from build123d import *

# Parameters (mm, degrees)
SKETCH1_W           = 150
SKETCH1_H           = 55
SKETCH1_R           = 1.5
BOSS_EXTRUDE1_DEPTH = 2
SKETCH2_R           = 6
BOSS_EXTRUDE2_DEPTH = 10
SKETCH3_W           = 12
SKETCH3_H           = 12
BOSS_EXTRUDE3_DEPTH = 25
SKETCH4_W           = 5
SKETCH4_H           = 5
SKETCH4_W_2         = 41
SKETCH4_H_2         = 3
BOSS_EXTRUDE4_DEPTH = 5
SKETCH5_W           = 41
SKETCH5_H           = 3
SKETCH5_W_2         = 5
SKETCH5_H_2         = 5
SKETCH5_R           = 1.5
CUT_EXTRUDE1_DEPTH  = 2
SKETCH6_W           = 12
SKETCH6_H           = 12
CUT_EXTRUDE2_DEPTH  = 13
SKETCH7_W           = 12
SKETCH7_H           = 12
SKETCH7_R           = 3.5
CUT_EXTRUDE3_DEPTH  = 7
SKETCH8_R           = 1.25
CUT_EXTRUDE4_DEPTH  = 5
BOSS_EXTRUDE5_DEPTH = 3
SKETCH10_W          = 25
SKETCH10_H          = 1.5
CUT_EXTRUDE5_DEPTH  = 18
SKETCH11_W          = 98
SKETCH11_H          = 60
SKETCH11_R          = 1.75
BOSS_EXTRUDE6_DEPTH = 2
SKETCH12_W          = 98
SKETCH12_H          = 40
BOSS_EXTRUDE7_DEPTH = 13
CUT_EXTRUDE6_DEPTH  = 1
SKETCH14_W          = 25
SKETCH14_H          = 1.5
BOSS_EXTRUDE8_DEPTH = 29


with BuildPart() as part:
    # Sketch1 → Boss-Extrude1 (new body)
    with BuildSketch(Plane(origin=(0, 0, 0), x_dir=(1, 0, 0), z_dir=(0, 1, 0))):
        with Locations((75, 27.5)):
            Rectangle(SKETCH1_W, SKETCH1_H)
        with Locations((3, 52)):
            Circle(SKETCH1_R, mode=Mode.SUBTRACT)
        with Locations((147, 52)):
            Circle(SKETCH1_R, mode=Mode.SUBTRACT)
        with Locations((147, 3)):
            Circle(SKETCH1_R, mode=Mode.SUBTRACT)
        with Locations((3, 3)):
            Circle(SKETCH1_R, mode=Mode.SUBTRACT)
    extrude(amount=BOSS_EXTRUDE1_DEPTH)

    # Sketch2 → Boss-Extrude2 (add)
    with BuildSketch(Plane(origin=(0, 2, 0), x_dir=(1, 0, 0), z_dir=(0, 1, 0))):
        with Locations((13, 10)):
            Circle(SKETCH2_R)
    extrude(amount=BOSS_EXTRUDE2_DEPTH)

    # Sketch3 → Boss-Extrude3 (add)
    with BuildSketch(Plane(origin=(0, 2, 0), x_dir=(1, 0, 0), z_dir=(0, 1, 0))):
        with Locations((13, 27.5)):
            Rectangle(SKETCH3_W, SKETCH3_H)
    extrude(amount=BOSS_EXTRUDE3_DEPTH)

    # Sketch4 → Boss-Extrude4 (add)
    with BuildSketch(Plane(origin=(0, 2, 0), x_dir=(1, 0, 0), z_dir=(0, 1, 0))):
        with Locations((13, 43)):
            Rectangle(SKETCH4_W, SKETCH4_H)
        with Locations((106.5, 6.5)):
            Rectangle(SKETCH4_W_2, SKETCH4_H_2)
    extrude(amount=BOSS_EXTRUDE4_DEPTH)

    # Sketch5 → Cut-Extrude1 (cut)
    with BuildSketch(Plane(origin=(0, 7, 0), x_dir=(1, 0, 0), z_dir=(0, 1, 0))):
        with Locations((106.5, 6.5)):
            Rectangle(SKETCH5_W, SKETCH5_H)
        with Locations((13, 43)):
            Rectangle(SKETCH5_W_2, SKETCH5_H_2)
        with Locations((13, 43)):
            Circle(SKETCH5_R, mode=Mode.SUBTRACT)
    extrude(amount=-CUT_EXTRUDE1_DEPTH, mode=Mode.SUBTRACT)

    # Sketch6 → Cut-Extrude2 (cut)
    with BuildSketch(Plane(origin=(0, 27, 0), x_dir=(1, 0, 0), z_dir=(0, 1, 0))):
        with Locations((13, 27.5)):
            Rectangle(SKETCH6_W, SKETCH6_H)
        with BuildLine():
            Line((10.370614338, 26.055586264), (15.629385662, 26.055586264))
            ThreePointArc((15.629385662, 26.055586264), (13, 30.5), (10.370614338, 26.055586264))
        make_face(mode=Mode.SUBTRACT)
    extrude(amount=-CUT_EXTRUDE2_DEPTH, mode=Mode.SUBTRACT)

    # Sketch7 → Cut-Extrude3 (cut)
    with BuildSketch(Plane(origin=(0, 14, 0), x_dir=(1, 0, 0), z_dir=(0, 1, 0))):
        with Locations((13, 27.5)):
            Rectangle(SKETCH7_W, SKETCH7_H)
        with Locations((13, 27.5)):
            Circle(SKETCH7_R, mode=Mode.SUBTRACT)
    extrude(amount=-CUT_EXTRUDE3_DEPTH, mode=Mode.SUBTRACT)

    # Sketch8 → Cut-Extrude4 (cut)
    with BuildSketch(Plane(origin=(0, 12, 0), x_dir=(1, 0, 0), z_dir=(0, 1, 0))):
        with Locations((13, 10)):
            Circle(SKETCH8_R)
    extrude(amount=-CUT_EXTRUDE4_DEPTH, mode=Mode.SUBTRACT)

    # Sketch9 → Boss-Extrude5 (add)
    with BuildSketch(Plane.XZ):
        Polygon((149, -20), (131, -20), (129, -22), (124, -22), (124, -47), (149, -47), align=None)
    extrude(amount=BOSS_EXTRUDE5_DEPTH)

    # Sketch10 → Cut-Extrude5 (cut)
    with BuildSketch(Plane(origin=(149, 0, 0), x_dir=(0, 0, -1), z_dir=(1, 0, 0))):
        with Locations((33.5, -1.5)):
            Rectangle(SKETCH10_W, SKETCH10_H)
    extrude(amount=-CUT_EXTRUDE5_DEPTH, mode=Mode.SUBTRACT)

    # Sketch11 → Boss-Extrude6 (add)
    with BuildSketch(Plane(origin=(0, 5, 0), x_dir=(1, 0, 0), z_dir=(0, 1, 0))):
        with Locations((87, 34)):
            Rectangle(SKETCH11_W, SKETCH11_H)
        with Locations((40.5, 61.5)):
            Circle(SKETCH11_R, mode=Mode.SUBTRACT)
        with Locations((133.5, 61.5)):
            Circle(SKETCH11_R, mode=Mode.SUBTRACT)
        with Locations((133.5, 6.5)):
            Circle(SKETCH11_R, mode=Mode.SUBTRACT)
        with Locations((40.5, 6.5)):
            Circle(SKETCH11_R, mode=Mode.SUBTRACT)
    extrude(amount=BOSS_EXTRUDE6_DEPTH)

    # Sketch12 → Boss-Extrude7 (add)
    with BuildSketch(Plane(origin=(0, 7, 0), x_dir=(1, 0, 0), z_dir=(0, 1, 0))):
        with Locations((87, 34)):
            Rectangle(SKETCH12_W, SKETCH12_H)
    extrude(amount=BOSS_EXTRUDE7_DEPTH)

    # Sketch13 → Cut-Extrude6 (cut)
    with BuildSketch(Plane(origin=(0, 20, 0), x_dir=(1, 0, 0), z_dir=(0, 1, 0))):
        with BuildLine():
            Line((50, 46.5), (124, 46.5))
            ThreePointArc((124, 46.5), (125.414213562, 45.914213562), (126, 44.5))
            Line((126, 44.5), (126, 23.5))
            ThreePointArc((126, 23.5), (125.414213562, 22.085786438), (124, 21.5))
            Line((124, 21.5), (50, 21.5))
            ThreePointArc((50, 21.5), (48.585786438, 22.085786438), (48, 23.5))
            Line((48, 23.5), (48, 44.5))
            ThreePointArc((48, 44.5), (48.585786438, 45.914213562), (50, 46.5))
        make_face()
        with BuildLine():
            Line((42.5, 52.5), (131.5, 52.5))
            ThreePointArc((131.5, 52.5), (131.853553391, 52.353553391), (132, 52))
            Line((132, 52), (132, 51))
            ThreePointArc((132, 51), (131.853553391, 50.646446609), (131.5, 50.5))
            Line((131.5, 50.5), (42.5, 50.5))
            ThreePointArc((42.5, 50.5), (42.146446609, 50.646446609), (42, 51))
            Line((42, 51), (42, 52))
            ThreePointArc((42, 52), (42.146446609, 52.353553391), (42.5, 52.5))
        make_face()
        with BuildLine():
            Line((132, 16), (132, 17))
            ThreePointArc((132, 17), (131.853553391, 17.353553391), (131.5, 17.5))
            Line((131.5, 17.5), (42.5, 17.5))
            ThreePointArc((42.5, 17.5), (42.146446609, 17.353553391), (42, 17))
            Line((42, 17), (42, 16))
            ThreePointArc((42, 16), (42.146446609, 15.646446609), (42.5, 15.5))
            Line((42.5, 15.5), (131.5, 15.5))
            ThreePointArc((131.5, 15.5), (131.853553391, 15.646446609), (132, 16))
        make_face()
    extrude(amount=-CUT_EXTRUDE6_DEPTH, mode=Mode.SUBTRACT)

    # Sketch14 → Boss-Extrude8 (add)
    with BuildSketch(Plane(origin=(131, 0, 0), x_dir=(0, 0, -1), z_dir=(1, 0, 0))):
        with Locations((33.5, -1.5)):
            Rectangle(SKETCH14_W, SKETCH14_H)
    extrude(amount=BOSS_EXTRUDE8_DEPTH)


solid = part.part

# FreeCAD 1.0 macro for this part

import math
import FreeCAD as App
import Part
import Sketcher

V = App.Vector
Q = App.Units.Quantity


def add_polygon(sketch, points):
    """Adds a closed chain of lines whose ends are joined by coincident constraints."""
    first, n = sketch.GeometryCount, len(points)
    for a, b in zip(points, points[1:] + points[:1]):
        sketch.addGeometry(Part.LineSegment(App.Vector(*a, 0), App.Vector(*b, 0)), False)
    for i in range(n):
        sketch.addConstraint(Sketcher.Constraint("Coincident", first + i, 2, first + (i + 1) % n, 1))

doc = App.newDocument("Part")
body = doc.addObject("PartDesign::Body", "Body")

# Sketch on XZ plane
sketch1 = body.newObject("Sketcher::SketchObject", "Sketch")
sketch1.AttachmentSupport = (doc.getObject("XZ_Plane"), [""])
sketch1.MapMode = "FlatFace"
add_polygon(sketch1, [(0, -55), (0, 0), (150, 0), (150, -55)])  # lines 0-3
sketch1.addGeometry(Part.Circle(V(3, -3, 0), V(0, 0, 1), 1.5), False)  # 4
sketch1.addGeometry(Part.Circle(V(147, -3, 0), V(0, 0, 1), 1.5), False)  # 5
sketch1.addGeometry(Part.Circle(V(3, -52, 0), V(0, 0, 1), 1.5), False)  # 6
sketch1.addGeometry(Part.Circle(V(147, -52, 0), V(0, 0, 1), 1.5), False)  # 7
sketch1.addConstraint([
    Sketcher.Constraint("Vertical", 0),
    Sketcher.Constraint("Horizontal", 1),
    Sketcher.Constraint("Vertical", 2),
    Sketcher.Constraint("Horizontal", 3),
    Sketcher.Constraint("Coincident", 0, 2, -1, 1),
    Sketcher.Constraint("Equal", 4, 5),
    Sketcher.Constraint("Equal", 5, 6),
    Sketcher.Constraint("Equal", 6, 7),
    Sketcher.Constraint("Horizontal", 4, 3, 5, 3),
    Sketcher.Constraint("Horizontal", 6, 3, 7, 3),
    Sketcher.Constraint("Vertical", 4, 3, 6, 3),
    Sketcher.Constraint("Vertical", 5, 3, 7, 3),
    Sketcher.Constraint("Diameter", 4, Q("3 mm")),
    Sketcher.Constraint("DistanceX", 1, 1, 1, 2, Q("150 mm")),
    Sketcher.Constraint("DistanceY", 0, 1, 0, 2, Q("55 mm")),
    Sketcher.Constraint("DistanceX", -1, 1, 4, 3, Q("3 mm")),
    Sketcher.Constraint("DistanceY", 4, 3, -1, 1, Q("3 mm")),
    Sketcher.Constraint("DistanceX", -1, 1, 5, 3, Q("147 mm")),
    Sketcher.Constraint("DistanceY", 6, 3, -1, 1, Q("52 mm")),
])
pad1 = body.newObject("PartDesign::Pad", "Pad")
pad1.Profile = sketch1
pad1.Length = 2
pad1.Reversed = True

# Sketch on XZ plane
sketch2 = body.newObject("Sketcher::SketchObject", "Sketch001")
sketch2.AttachmentSupport = (doc.getObject("XZ_Plane"), [""])
sketch2.MapMode = "FlatFace"
sketch2.AttachmentOffset = App.Placement(V(0, 0, -2), App.Rotation())
sketch2.addGeometry(Part.Circle(V(13, -10, 0), V(0, 0, 1), 6), False)
sketch2.addConstraint([
    Sketcher.Constraint("Diameter", 0, Q("12 mm")),
    Sketcher.Constraint("DistanceX", -1, 1, 0, 3, Q("13 mm")),
    Sketcher.Constraint("DistanceY", 0, 3, -1, 1, Q("10 mm")),
])
pad2 = body.newObject("PartDesign::Pad", "Pad001")
pad2.Profile = sketch2
pad2.Length = 10
pad2.Reversed = True

# Sketch on XZ plane
sketch3 = body.newObject("Sketcher::SketchObject", "Sketch002")
sketch3.AttachmentSupport = (doc.getObject("XZ_Plane"), [""])
sketch3.MapMode = "FlatFace"
sketch3.AttachmentOffset = App.Placement(V(0, 0, -2), App.Rotation())
add_polygon(sketch3, [(7, -34), (7, -22), (19, -22), (19, -34)])  # lines 0-3
sketch3.addConstraint([
    Sketcher.Constraint("Vertical", 0),
    Sketcher.Constraint("Horizontal", 1),
    Sketcher.Constraint("Vertical", 2),
    Sketcher.Constraint("Horizontal", 3),
    Sketcher.Constraint("Equal", 3, 0),
    Sketcher.Constraint("DistanceX", 1, 1, 1, 2, Q("12 mm")),
    Sketcher.Constraint("DistanceX", -1, 1, 0, 2, Q("7 mm")),
    Sketcher.Constraint("DistanceY", 0, 2, -1, 1, Q("21.5 mm")),
])
pad3 = body.newObject("PartDesign::Pad", "Pad002")
pad3.Profile = sketch3
pad3.Length = 25
pad3.Reversed = True

# Sketch on XZ plane
sketch4 = body.newObject("Sketcher::SketchObject", "Sketch003")
sketch4.AttachmentSupport = (doc.getObject("XZ_Plane"), [""])
sketch4.MapMode = "FlatFace"
sketch4.AttachmentOffset = App.Placement(V(0, 0, -2), App.Rotation())
add_polygon(sketch4, [(10.5, -45.5), (10.5, -40.5), (15.5, -40.5), (15.5, -45.5)])  # lines 0-3
add_polygon(sketch4, [(86, -8), (86, -5), (127, -5), (127, -8)])  # lines 4-7
sketch4.addConstraint([
    Sketcher.Constraint("Vertical", 0),
    Sketcher.Constraint("Horizontal", 1),
    Sketcher.Constraint("Vertical", 2),
    Sketcher.Constraint("Horizontal", 3),
    Sketcher.Constraint("Vertical", 4),
    Sketcher.Constraint("Horizontal", 5),
    Sketcher.Constraint("Vertical", 6),
    Sketcher.Constraint("Horizontal", 7),
    Sketcher.Constraint("Equal", 3, 0),
    Sketcher.Constraint("DistanceX", 1, 1, 1, 2, Q("5 mm")),
    Sketcher.Constraint("DistanceX", 5, 1, 5, 2, Q("41 mm")),
    Sketcher.Constraint("DistanceY", 4, 1, 4, 2, Q("3 mm")),
    Sketcher.Constraint("DistanceX", -1, 1, 4, 2, Q("86 mm")),
    Sketcher.Constraint("DistanceY", 4, 2, -1, 1, Q("5 mm")),
    Sketcher.Constraint("DistanceX", -1, 1, 0, 2, Q("10.5 mm")),
    Sketcher.Constraint("DistanceY", 0, 2, -1, 1, Q("40.5 mm")),
])
pad4 = body.newObject("PartDesign::Pad", "Pad003")
pad4.Profile = sketch4
pad4.Length = 5
pad4.Reversed = True

# Sketch on XZ plane
sketch5 = body.newObject("Sketcher::SketchObject", "Sketch004")
sketch5.AttachmentSupport = (doc.getObject("XZ_Plane"), [""])
sketch5.MapMode = "FlatFace"
sketch5.AttachmentOffset = App.Placement(V(0, 0, -7), App.Rotation())
add_polygon(sketch5, [(86, -8), (86, -5), (127, -5), (127, -8)])  # lines 0-3
add_polygon(sketch5, [(10.5, -45.5), (10.5, -40.5), (15.5, -40.5), (15.5, -45.5)])  # lines 4-7
sketch5.addGeometry(Part.Circle(V(13, -43, 0), V(0, 0, 1), 1.5), False)  # 8
sketch5.addConstraint([
    Sketcher.Constraint("Vertical", 0),
    Sketcher.Constraint("Horizontal", 1),
    Sketcher.Constraint("Vertical", 2),
    Sketcher.Constraint("Horizontal", 3),
    Sketcher.Constraint("Vertical", 4),
    Sketcher.Constraint("Horizontal", 5),
    Sketcher.Constraint("Vertical", 6),
    Sketcher.Constraint("Horizontal", 7),
    Sketcher.Constraint("Equal", 7, 4),
    Sketcher.Constraint("Diameter", 8, Q("3 mm")),
    Sketcher.Constraint("DistanceX", 1, 1, 1, 2, Q("41 mm")),
    Sketcher.Constraint("DistanceX", 5, 1, 5, 2, Q("5 mm")),
    Sketcher.Constraint("DistanceY", 0, 1, 0, 2, Q("3 mm")),
    Sketcher.Constraint("DistanceX", -1, 1, 8, 3, Q("13 mm")),
    Sketcher.Constraint("DistanceY", 8, 3, -1, 1, Q("43 mm")),
    Sketcher.Constraint("DistanceX", -1, 1, 0, 2, Q("86 mm")),
    Sketcher.Constraint("DistanceY", 0, 2, -1, 1, Q("5 mm")),
    Sketcher.Constraint("DistanceX", -1, 1, 4, 2, Q("10.5 mm")),
    Sketcher.Constraint("DistanceY", 4, 2, -1, 1, Q("40.5 mm")),
])
pocket1 = body.newObject("PartDesign::Pocket", "Pocket")
pocket1.Profile = sketch5
pocket1.Length = 2
pocket1.Reversed = True

# Sketch on XZ plane
sketch6 = body.newObject("Sketcher::SketchObject", "Sketch005")
sketch6.AttachmentSupport = (doc.getObject("XZ_Plane"), [""])
sketch6.MapMode = "FlatFace"
sketch6.AttachmentOffset = App.Placement(V(0, 0, -27), App.Rotation())
add_polygon(sketch6, [(7, -33.5), (7, -21.5), (19, -21.5), (19, -33.5)])  # lines 0-3
sketch6.addGeometry(Part.LineSegment(V(15.6, -26.1, 0), V(10.4, -26.1, 0)), False)  # 4
sketch6.addGeometry(Part.ArcOfCircle(Part.Circle(V(13, -27.5, 0), V(0, 0, 1), 3), math.radians(151), math.radians(389)), False)  # 5
sketch6.addConstraint([
    Sketcher.Constraint("Coincident", 4, 1, 5, 2),
    Sketcher.Constraint("Coincident", 5, 1, 4, 2),
    Sketcher.Constraint("Vertical", 0),
    Sketcher.Constraint("Horizontal", 1),
    Sketcher.Constraint("Vertical", 2),
    Sketcher.Constraint("Horizontal", 3),
    Sketcher.Constraint("Horizontal", 4),
    Sketcher.Constraint("Equal", 3, 0),
    Sketcher.Constraint("Radius", 5, Q("3 mm")),
    Sketcher.Constraint("DistanceX", 1, 1, 1, 2, Q("12 mm")),
    Sketcher.Constraint("DistanceX", -1, 1, 5, 3, Q("13 mm")),
    Sketcher.Constraint("DistanceX", -1, 1, 0, 2, Q("7 mm")),
    Sketcher.Constraint("DistanceY", 5, 3, 0, 2, Q("6 mm")),
    Sketcher.Constraint("DistanceY", 5, 3, -1, 1, Q("27.5 mm")),
    Sketcher.Constraint("DistanceX", 4, 2, 4, 1, Q("5.258771 mm")),
])
pocket2 = body.newObject("PartDesign::Pocket", "Pocket001")
pocket2.Profile = sketch6
pocket2.Length = 13
pocket2.Reversed = True

# Sketch on XZ plane
sketch7 = body.newObject("Sketcher::SketchObject", "Sketch006")
sketch7.AttachmentSupport = (doc.getObject("XZ_Plane"), [""])
sketch7.MapMode = "FlatFace"
sketch7.AttachmentOffset = App.Placement(V(0, 0, -14), App.Rotation())
add_polygon(sketch7, [(7, -33.5), (7, -21.5), (19, -21.5), (19, -33.5)])  # lines 0-3
sketch7.addGeometry(Part.Circle(V(13, -27.5, 0), V(0, 0, 1), 3.5), False)  # 4
sketch7.addConstraint([
    Sketcher.Constraint("Vertical", 0),
    Sketcher.Constraint("Horizontal", 1),
    Sketcher.Constraint("Vertical", 2),
    Sketcher.Constraint("Horizontal", 3),
    Sketcher.Constraint("Equal", 3, 0),
    Sketcher.Constraint("Diameter", 4, Q("7 mm")),
    Sketcher.Constraint("DistanceX", 1, 1, 1, 2, Q("12 mm")),
    Sketcher.Constraint("DistanceX", -1, 1, 4, 3, Q("13 mm")),
    Sketcher.Constraint("DistanceX", -1, 1, 0, 2, Q("7 mm")),
    Sketcher.Constraint("DistanceY", 4, 3, 0, 2, Q("6 mm")),
    Sketcher.Constraint("DistanceY", 4, 3, -1, 1, Q("27.5 mm")),
])
pocket3 = body.newObject("PartDesign::Pocket", "Pocket002")
pocket3.Profile = sketch7
pocket3.Length = 7
pocket3.Reversed = True

# Sketch on XZ plane
sketch8 = body.newObject("Sketcher::SketchObject", "Sketch007")
sketch8.AttachmentSupport = (doc.getObject("XZ_Plane"), [""])
sketch8.MapMode = "FlatFace"
sketch8.AttachmentOffset = App.Placement(V(0, 0, -12), App.Rotation())
sketch8.addGeometry(Part.Circle(V(13, -10, 0), V(0, 0, 1), 1.2), False)
sketch8.addConstraint([
    Sketcher.Constraint("Diameter", 0, Q("2.5 mm")),
    Sketcher.Constraint("DistanceX", -1, 1, 0, 3, Q("13 mm")),
    Sketcher.Constraint("DistanceY", 0, 3, -1, 1, Q("10 mm")),
])
pocket4 = body.newObject("PartDesign::Pocket", "Pocket003")
pocket4.Profile = sketch8
pocket4.Length = 5
pocket4.Reversed = True

# Sketch on XZ plane
sketch9 = body.newObject("Sketcher::SketchObject", "Sketch008")
sketch9.AttachmentSupport = (doc.getObject("XZ_Plane"), [""])
sketch9.MapMode = "FlatFace"
add_polygon(sketch9, [(149, -20), (131, -20), (129, -22), (124, -22), (124, -47), (149, -47)])  # lines 0-5
sketch9.addConstraint([
    Sketcher.Constraint("Horizontal", 0),
    Sketcher.Constraint("Horizontal", 2),
    Sketcher.Constraint("Vertical", 3),
    Sketcher.Constraint("Horizontal", 4),
    Sketcher.Constraint("Vertical", 5),
    Sketcher.Constraint("Equal", 4, 3),
    Sketcher.Constraint("DistanceX", 0, 2, 0, 1, Q("18 mm")),
    Sketcher.Constraint("DistanceX", 2, 2, 2, 1, Q("5 mm")),
    Sketcher.Constraint("DistanceX", 4, 1, 4, 2, Q("25 mm")),
    Sketcher.Constraint("DistanceY", 5, 1, 5, 2, Q("27 mm")),
    Sketcher.Constraint("DistanceX", -1, 1, 0, 2, Q("131 mm")),
    Sketcher.Constraint("DistanceY", 0, 2, -1, 1, Q("20 mm")),
])
pad5 = body.newObject("PartDesign::Pad", "Pad004")
pad5.Profile = sketch9
pad5.Length = 3

# Sketch on YZ plane
sketch10 = body.newObject("Sketcher::SketchObject", "Sketch009")
sketch10.AttachmentSupport = (doc.getObject("YZ_Plane"), [""])
sketch10.MapMode = "FlatFace"
sketch10.AttachmentOffset = App.Placement(V(0, 0, 149), App.Rotation())
add_polygon(sketch10, [(-0.8, -21), (-2.2, -21), (-2.2, -46), (-0.8, -46)])  # lines 0-3
sketch10.addConstraint([
    Sketcher.Constraint("Horizontal", 0),
    Sketcher.Constraint("Vertical", 1),
    Sketcher.Constraint("Horizontal", 2),
    Sketcher.Constraint("Vertical", 3),
    Sketcher.Constraint("DistanceY", 1, 2, 1, 1, Q("25 mm")),
    Sketcher.Constraint("DistanceX", 0, 2, 0, 1, Q("1.5 mm")),
    Sketcher.Constraint("DistanceY", 0, 2, -1, 1, Q("21 mm")),
    Sketcher.Constraint("DistanceX", 0, 2, -1, 1, Q("2.25 mm")),
])
pocket5 = body.newObject("PartDesign::Pocket", "Pocket004")
pocket5.Profile = sketch10
pocket5.Length = 18

# Sketch on XZ plane
sketch11 = body.newObject("Sketcher::SketchObject", "Sketch010")
sketch11.AttachmentSupport = (doc.getObject("XZ_Plane"), [""])
sketch11.MapMode = "FlatFace"
sketch11.AttachmentOffset = App.Placement(V(0, 0, -5), App.Rotation())
add_polygon(sketch11, [(38, -64), (38, -4), (136, -4), (136, -64)])  # lines 0-3
sketch11.addGeometry(Part.Circle(V(40.5, -6.5, 0), V(0, 0, 1), 1.8), False)  # 4
sketch11.addGeometry(Part.Circle(V(133.5, -6.5, 0), V(0, 0, 1), 1.8), False)  # 5
sketch11.addGeometry(Part.Circle(V(40.5, -61.5, 0), V(0, 0, 1), 1.8), False)  # 6
sketch11.addGeometry(Part.Circle(V(133.5, -61.5, 0), V(0, 0, 1), 1.8), False)  # 7
sketch11.addConstraint([
    Sketcher.Constraint("Vertical", 0),
    Sketcher.Constraint("Horizontal", 1),
    Sketcher.Constraint("Vertical", 2),
    Sketcher.Constraint("Horizontal", 3),
    Sketcher.Constraint("Equal", 4, 5),
    Sketcher.Constraint("Equal", 5, 6),
    Sketcher.Constraint("Equal", 6, 7),
    Sketcher.Constraint("Horizontal", 4, 3, 5, 3),
    Sketcher.Constraint("Horizontal", 6, 3, 7, 3),
    Sketcher.Constraint("Vertical", 4, 3, 6, 3),
    Sketcher.Constraint("Vertical", 5, 3, 7, 3),
    Sketcher.Constraint("Diameter", 4, Q("3.5 mm")),
    Sketcher.Constraint("DistanceX", 1, 1, 1, 2, Q("98 mm")),
    Sketcher.Constraint("DistanceY", 0, 1, 0, 2, Q("60 mm")),
    Sketcher.Constraint("DistanceX", -1, 1, 0, 2, Q("38 mm")),
    Sketcher.Constraint("DistanceY", 0, 2, -1, 1, Q("4 mm")),
    Sketcher.Constraint("DistanceX", 4, 3, 5, 3, Q("93 mm")),
    Sketcher.Constraint("DistanceY", 6, 3, 4, 3, Q("55 mm")),
    Sketcher.Constraint("DistanceX", -1, 1, 4, 3, Q("40.5 mm")),
    Sketcher.Constraint("DistanceY", 4, 3, -1, 1, Q("6.5 mm")),
])
pad6 = body.newObject("PartDesign::Pad", "Pad005")
pad6.Profile = sketch11
pad6.Length = 2
pad6.Reversed = True

# Sketch on XZ plane
sketch12 = body.newObject("Sketcher::SketchObject", "Sketch011")
sketch12.AttachmentSupport = (doc.getObject("XZ_Plane"), [""])
sketch12.MapMode = "FlatFace"
sketch12.AttachmentOffset = App.Placement(V(0, 0, -7), App.Rotation())
add_polygon(sketch12, [(38, -54), (38, -14), (136, -14), (136, -54)])  # lines 0-3
sketch12.addConstraint([
    Sketcher.Constraint("Vertical", 0),
    Sketcher.Constraint("Horizontal", 1),
    Sketcher.Constraint("Vertical", 2),
    Sketcher.Constraint("Horizontal", 3),
    Sketcher.Constraint("DistanceX", 1, 1, 1, 2, Q("98 mm")),
    Sketcher.Constraint("DistanceY", 0, 1, 0, 2, Q("40 mm")),
    Sketcher.Constraint("DistanceX", -1, 1, 0, 2, Q("38 mm")),
    Sketcher.Constraint("DistanceY", 0, 2, -1, 1, Q("14 mm")),
])
pad7 = body.newObject("PartDesign::Pad", "Pad006")
pad7.Profile = sketch12
pad7.Length = 13
pad7.Reversed = True

# Sketch on XZ plane
sketch13 = body.newObject("Sketcher::SketchObject", "Sketch012")
sketch13.AttachmentSupport = (doc.getObject("XZ_Plane"), [""])
sketch13.MapMode = "FlatFace"
sketch13.AttachmentOffset = App.Placement(V(0, 0, -20), App.Rotation())
sketch13.addGeometry([
    Part.LineSegment(V(124, -46.5, 0), V(50, -46.5, 0)),  # 0
    Part.ArcOfCircle(Part.Circle(V(50, -44.5, 0), V(0, 0, 1), 2), math.radians(-180), math.radians(-90)),  # 1
    Part.LineSegment(V(48, -44.5, 0), V(48, -23.5, 0)),  # 2
    Part.ArcOfCircle(Part.Circle(V(50, -23.5, 0), V(0, 0, 1), 2), math.radians(90), math.radians(180)),  # 3
    Part.LineSegment(V(50, -21.5, 0), V(124, -21.5, 0)),  # 4
    Part.ArcOfCircle(Part.Circle(V(124, -23.5, 0), V(0, 0, 1), 2), math.radians(0), math.radians(90)),  # 5
    Part.LineSegment(V(126, -23.5, 0), V(126, -44.5, 0)),  # 6
    Part.ArcOfCircle(Part.Circle(V(124, -44.5, 0), V(0, 0, 1), 2), math.radians(-90), math.radians(0)),  # 7
    Part.LineSegment(V(131.5, -52.5, 0), V(42.5, -52.5, 0)),  # 8
    Part.ArcOfCircle(Part.Circle(V(42.5, -52, 0), V(0, 0, 1), 0.5), math.radians(180), math.radians(270)),  # 9
    Part.LineSegment(V(42, -52, 0), V(42, -51, 0)),  # 10
    Part.ArcOfCircle(Part.Circle(V(42.5, -51, 0), V(0, 0, 1), 0.5), math.radians(90), math.radians(180)),  # 11
    Part.LineSegment(V(42.5, -50.5, 0), V(131.5, -50.5, 0)),  # 12
    Part.ArcOfCircle(Part.Circle(V(131.5, -51, 0), V(0, 0, 1), 0.5), math.radians(0), math.radians(90)),  # 13
    Part.LineSegment(V(132, -51, 0), V(132, -52, 0)),  # 14
    Part.ArcOfCircle(Part.Circle(V(131.5, -52, 0), V(0, 0, 1), 0.5), math.radians(-90), math.radians(0)),  # 15
    Part.LineSegment(V(132, -16, 0), V(132, -17, 0)),  # 16
    Part.ArcOfCircle(Part.Circle(V(131.5, -17, 0), V(0, 0, 1), 0.5), math.radians(-90), math.radians(0)),  # 17
    Part.LineSegment(V(131.5, -17.5, 0), V(42.5, -17.5, 0)),  # 18
    Part.ArcOfCircle(Part.Circle(V(42.5, -17, 0), V(0, 0, 1), 0.5), math.radians(180), math.radians(270)),  # 19
    Part.LineSegment(V(42, -17, 0), V(42, -16, 0)),  # 20
    Part.ArcOfCircle(Part.Circle(V(42.5, -16, 0), V(0, 0, 1), 0.5), math.radians(90), math.radians(180)),  # 21
    Part.LineSegment(V(42.5, -15.5, 0), V(131.5, -15.5, 0)),  # 22
    Part.ArcOfCircle(Part.Circle(V(131.5, -16, 0), V(0, 0, 1), 0.5), math.radians(0), math.radians(90)),  # 23
], False)
sketch13.addConstraint([
    Sketcher.Constraint("Tangent", 0, 2, 1, 2),
    Sketcher.Constraint("Tangent", 1, 1, 2, 1),
    Sketcher.Constraint("Tangent", 2, 2, 3, 2),
    Sketcher.Constraint("Tangent", 3, 1, 4, 1),
    Sketcher.Constraint("Tangent", 4, 2, 5, 2),
    Sketcher.Constraint("Tangent", 5, 1, 6, 1),
    Sketcher.Constraint("Tangent", 6, 2, 7, 2),
    Sketcher.Constraint("Tangent", 7, 1, 0, 1),
    Sketcher.Constraint("Tangent", 8, 2, 9, 2),
    Sketcher.Constraint("Tangent", 9, 1, 10, 1),
    Sketcher.Constraint("Tangent", 10, 2, 11, 2),
    Sketcher.Constraint("Tangent", 11, 1, 12, 1),
    Sketcher.Constraint("Tangent", 12, 2, 13, 2),
    Sketcher.Constraint("Tangent", 13, 1, 14, 1),
    Sketcher.Constraint("Tangent", 14, 2, 15, 2),
    Sketcher.Constraint("Tangent", 15, 1, 8, 1),
    Sketcher.Constraint("Tangent", 16, 2, 17, 2),
    Sketcher.Constraint("Tangent", 17, 1, 18, 1),
    Sketcher.Constraint("Tangent", 18, 2, 19, 2),
    Sketcher.Constraint("Tangent", 19, 1, 20, 1),
    Sketcher.Constraint("Tangent", 20, 2, 21, 2),
    Sketcher.Constraint("Tangent", 21, 1, 22, 1),
    Sketcher.Constraint("Tangent", 22, 2, 23, 2),
    Sketcher.Constraint("Tangent", 23, 1, 16, 1),
    Sketcher.Constraint("Horizontal", 0),
    Sketcher.Constraint("Vertical", 2),
    Sketcher.Constraint("Horizontal", 4),
    Sketcher.Constraint("Vertical", 6),
    Sketcher.Constraint("Horizontal", 8),
    Sketcher.Constraint("Vertical", 10),
    Sketcher.Constraint("Horizontal", 12),
    Sketcher.Constraint("Vertical", 14),
    Sketcher.Constraint("Vertical", 16),
    Sketcher.Constraint("Horizontal", 18),
    Sketcher.Constraint("Vertical", 20),
    Sketcher.Constraint("Horizontal", 22),
    Sketcher.Constraint("Equal", 1, 3),
    Sketcher.Constraint("Equal", 3, 5),
    Sketcher.Constraint("Equal", 5, 7),
    Sketcher.Constraint("Equal", 9, 11),
    Sketcher.Constraint("Equal", 11, 13),
    Sketcher.Constraint("Equal", 13, 15),
    Sketcher.Constraint("Equal", 15, 17),
    Sketcher.Constraint("Equal", 17, 19),
    Sketcher.Constraint("Equal", 19, 21),
    Sketcher.Constraint("Equal", 21, 23),
    Sketcher.Constraint("Vertical", 15, 3, 17, 3),
    Sketcher.Constraint("Vertical", 11, 3, 19, 3),
    Sketcher.Constraint("Equal", 14, 16),
    Sketcher.Constraint("Radius", 1, Q("2 mm")),
    Sketcher.Constraint("Radius", 9, Q("0.5 mm")),
    Sketcher.Constraint("DistanceX", 0, 2, 0, 1, Q("74 mm")),
    Sketcher.Constraint("DistanceX", 8, 2, 8, 1, Q("89 mm")),
    Sketcher.Constraint("DistanceY", 2, 1, 2, 2, Q("21 mm")),
    Sketcher.Constraint("DistanceY", 10, 1, 10, 2, Q("1 mm")),
    Sketcher.Constraint("DistanceX", -1, 1, 1, 3, Q("50 mm")),
    Sketcher.Constraint("DistanceY", 9, 3, -1, 1, Q("52 mm")),
    Sketcher.Constraint("DistanceY", 17, 3, -1, 1, Q("17 mm")),
    Sketcher.Constraint("DistanceX", -1, 1, 9, 1, Q("42 mm")),
    Sketcher.Constraint("DistanceY", 8, 2, 0, 2, Q("6 mm")),
])
pocket6 = body.newObject("PartDesign::Pocket", "Pocket005")
pocket6.Profile = sketch13
pocket6.Length = 1
pocket6.Reversed = True

# Sketch on YZ plane
sketch14 = body.newObject("Sketcher::SketchObject", "Sketch013")
sketch14.AttachmentSupport = (doc.getObject("YZ_Plane"), [""])
sketch14.MapMode = "FlatFace"
sketch14.AttachmentOffset = App.Placement(V(0, 0, 131), App.Rotation())
add_polygon(sketch14, [(-0.8, -21), (-2.2, -21), (-2.2, -46), (-0.8, -46)])  # lines 0-3
sketch14.addConstraint([
    Sketcher.Constraint("Horizontal", 0),
    Sketcher.Constraint("Vertical", 1),
    Sketcher.Constraint("Horizontal", 2),
    Sketcher.Constraint("Vertical", 3),
    Sketcher.Constraint("DistanceY", 1, 2, 1, 1, Q("25 mm")),
    Sketcher.Constraint("DistanceX", 0, 2, 0, 1, Q("1.5 mm")),
    Sketcher.Constraint("DistanceY", 0, 2, -1, 1, Q("21 mm")),
    Sketcher.Constraint("DistanceX", 0, 2, -1, 1, Q("2.25 mm")),
])
pad8 = body.newObject("PartDesign::Pad", "Pad007")
pad8.Profile = sketch14
pad8.Length = 29

doc.recompute()
